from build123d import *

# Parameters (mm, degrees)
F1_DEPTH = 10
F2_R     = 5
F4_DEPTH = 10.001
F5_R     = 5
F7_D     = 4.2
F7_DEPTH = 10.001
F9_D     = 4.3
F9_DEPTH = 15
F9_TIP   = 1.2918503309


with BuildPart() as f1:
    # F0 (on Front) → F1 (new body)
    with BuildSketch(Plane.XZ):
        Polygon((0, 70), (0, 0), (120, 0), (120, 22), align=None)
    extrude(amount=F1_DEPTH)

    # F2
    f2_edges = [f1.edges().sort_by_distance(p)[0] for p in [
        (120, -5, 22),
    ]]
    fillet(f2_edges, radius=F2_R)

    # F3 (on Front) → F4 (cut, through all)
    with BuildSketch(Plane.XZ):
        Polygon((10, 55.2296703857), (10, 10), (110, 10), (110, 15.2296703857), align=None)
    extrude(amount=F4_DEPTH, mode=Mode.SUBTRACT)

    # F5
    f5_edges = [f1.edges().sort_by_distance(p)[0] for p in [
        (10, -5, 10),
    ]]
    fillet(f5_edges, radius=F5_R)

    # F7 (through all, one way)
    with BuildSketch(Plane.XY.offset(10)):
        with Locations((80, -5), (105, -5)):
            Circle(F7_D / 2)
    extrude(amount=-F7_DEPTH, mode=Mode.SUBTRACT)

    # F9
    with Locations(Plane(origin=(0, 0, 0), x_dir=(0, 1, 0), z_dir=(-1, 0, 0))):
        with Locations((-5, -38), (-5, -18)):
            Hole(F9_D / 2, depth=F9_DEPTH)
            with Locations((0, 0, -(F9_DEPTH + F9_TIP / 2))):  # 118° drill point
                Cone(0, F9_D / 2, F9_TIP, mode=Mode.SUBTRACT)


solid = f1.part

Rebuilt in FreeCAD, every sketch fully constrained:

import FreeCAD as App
import Part
import Sketcher


def edges_at(feature, points):
    """Names of the edges that pass closest to the given points."""
    edges = feature.Shape.Edges
    near = lambda p: min(range(len(edges)), key=lambda i: edges[i].distToShape(Part.Vertex(*p))[0])
    return sorted({f"Edge{near(p) + 1}" for p in points})

doc = App.newDocument("Part")
params = doc.addObject("Spreadsheet::Sheet", "Params")
for row, (alias, value) in enumerate([
    ("sketch1_width", "120 mm"),
    ("sketch1_height", "70 mm"),
    ("sketch1_height2", "22 mm"),
    ("pad1_length", "10 mm"),
    ("fillet_radius", "5 mm"),
    ("sketch2_width", "100 mm"),
    ("fillet2_radius", "5 mm"),
    ("sketch3_diameter", "4.2 mm"),
    ("sketch4_diameter", "4.3 mm"),
    ("hole_diameter", "4.3 mm"),
    ("hole_depth", "15 mm"),
], start=1):
    params.set(f"A{row}", alias)
    params.set(f"B{row}", "=" + value)
    params.setAlias(f"B{row}", alias)

body = doc.addObject("PartDesign::Body", "Body")

sketch1 = body.newObject("Sketcher::SketchObject", "Sketch")
sketch1.AttachmentSupport = (doc.getObject("XZ_Plane"), [""])
sketch1.MapMode = "FlatFace"
sketch1.addGeometry([
    Part.LineSegment(App.Vector(0, 70, 0), App.Vector(0, 0, 0)),
    Part.LineSegment(App.Vector(0, 0, 0), App.Vector(120, 0, 0)),
    Part.LineSegment(App.Vector(120, 0, 0), App.Vector(120, 22, 0)),
    Part.LineSegment(App.Vector(120, 22, 0), App.Vector(0, 70, 0)),
], False)
sketch1.addConstraint([
    Sketcher.Constraint("Coincident", 0, 2, 1, 1),
    Sketcher.Constraint("Coincident", 1, 2, 2, 1),
    Sketcher.Constraint("Coincident", 2, 2, 3, 1),
    Sketcher.Constraint("Coincident", 3, 2, 0, 1),
    Sketcher.Constraint("Vertical", 0),
    Sketcher.Constraint("Horizontal", 1),
    Sketcher.Constraint("Vertical", 2),
    Sketcher.Constraint("Coincident", 0, 2, -1, 1),
    Sketcher.Constraint("DistanceX", 1, 1, 1, 2, 120.0),
    Sketcher.Constraint("DistanceY", 0, 2, 0, 1, 70.0),
    Sketcher.Constraint("DistanceY", 2, 1, 2, 2, 22.0),
])
sketch1.setExpression("Constraints[8]", "Params.sketch1_width")
sketch1.setExpression("Constraints[9]", "Params.sketch1_height")
sketch1.setExpression("Constraints[10]", "Params.sketch1_height2")
pad1 = body.newObject("PartDesign::Pad", "Pad")
pad1.Profile = sketch1
pad1.setExpression("Length", "Params.pad1_length")
doc.recompute()

fillet = body.newObject("PartDesign::Fillet", "Fillet")
fillet.Base = (pad1, edges_at(pad1, [(120, -5, 22)]))
fillet.setExpression("Radius", "Params.fillet_radius")

sketch2 = body.newObject("Sketcher::SketchObject", "Sketch001")
sketch2.AttachmentSupport = (doc.getObject("XZ_Plane"), [""])
sketch2.MapMode = "FlatFace"
sketch2.addGeometry([
    Part.LineSegment(App.Vector(10, 55, 0), App.Vector(10, 10, 0)),
    Part.LineSegment(App.Vector(10, 10, 0), App.Vector(110, 10, 0)),
    Part.LineSegment(App.Vector(110, 10, 0), App.Vector(110, 15, 0)),
    Part.LineSegment(App.Vector(110, 15, 0), App.Vector(10, 55, 0)),
], False)
sketch2.addConstraint([
    Sketcher.Constraint("Coincident", 0, 2, 1, 1),
    Sketcher.Constraint("Coincident", 1, 2, 2, 1),
    Sketcher.Constraint("Coincident", 2, 2, 3, 1),
    Sketcher.Constraint("Coincident", 3, 2, 0, 1),
    Sketcher.Constraint("Vertical", 0),
    Sketcher.Constraint("Horizontal", 1),
    Sketcher.Constraint("Vertical", 2),
    Sketcher.Constraint("DistanceX", 1, 1, 1, 2, 100.0),
    Sketcher.Constraint("DistanceX", -1, 1, 0, 2, 10.0),
    Sketcher.Constraint("DistanceY", -1, 1, 0, 2, 10.0),
    Sketcher.Constraint("DistanceY", 2, 2, 3, 2, 40.0),
    Sketcher.Constraint("DistanceY", 0, 2, 0, 1, 45.22967),
])
sketch2.setExpression("Constraints[7]", "Params.sketch2_width")
pocket1 = body.newObject("PartDesign::Pocket", "Pocket")
pocket1.Profile = sketch2
pocket1.Type = "ThroughAll"
pocket1.Reversed = True
doc.recompute()

fillet2 = body.newObject("PartDesign::Fillet", "Fillet001")
fillet2.Base = (pocket1, edges_at(pocket1, [(10, -5, 10)]))
fillet2.setExpression("Radius", "Params.fillet2_radius")

sketch3 = body.newObject("Sketcher::SketchObject", "Sketch002")
sketch3.AttachmentSupport = (doc.getObject("XY_Plane"), [""])
sketch3.MapMode = "FlatFace"
sketch3.AttachmentOffset = App.Placement(App.Vector(0, 0, 10), App.Rotation())
sketch3.addGeometry([
    Part.Circle(App.Vector(105, -5, 0), App.Vector(0, 0, 1), 2.1),
    Part.Circle(App.Vector(80, -5, 0), App.Vector(0, 0, 1), 2.1),
], False)
sketch3.addConstraint([
    Sketcher.Constraint("Equal", 0, 1),
    Sketcher.Constraint("Horizontal", 0, 3, 1, 3),
    Sketcher.Constraint("Diameter", 0, 4.2),
    Sketcher.Constraint("DistanceX", -1, 1, 0, 3, 105.0),
    Sketcher.Constraint("DistanceY", 0, 3, -1, 1, 5.0),
    Sketcher.Constraint("DistanceX", -1, 1, 1, 3, 80.0),
])
sketch3.setExpression("Constraints[2]", "Params.sketch3_diameter")
pocket2 = body.newObject("PartDesign::Pocket", "Pocket001")
pocket2.Profile = sketch3
pocket2.Type = "ThroughAll"

sketch4 = body.newObject("Sketcher::SketchObject", "Sketch003")
sketch4.AttachmentSupport = (doc.getObject("YZ_Plane"), [""])
sketch4.MapMode = "FlatFace"
sketch4.addGeometry([
    Part.Circle(App.Vector(-5, 38, 0), App.Vector(0, 0, 1), 2.1),
    Part.Circle(App.Vector(-5, 18, 0), App.Vector(0, 0, 1), 2.1),
], False)
sketch4.addConstraint([
    Sketcher.Constraint("Equal", 0, 1),
    Sketcher.Constraint("Vertical", 0, 3, 1, 3),
    Sketcher.Constraint("Diameter", 0, 4.3),
    Sketcher.Constraint("DistanceX", 0, 3, -1, 1, 5.0),
    Sketcher.Constraint("DistanceY", -1, 1, 0, 3, 38.0),
    Sketcher.Constraint("DistanceY", -1, 1, 1, 3, 18.0),
])
sketch4.setExpression("Constraints[2]", "Params.sketch4_diameter")
doc.recompute()
hole = body.newObject("PartDesign::Hole", "Hole")
hole.Profile = sketch4
hole.ThreadType = "None"
hole.setExpression("Diameter", "Params.hole_diameter")
hole.DepthType = "Dimension"
hole.setExpression("Depth", "Params.hole_depth")
hole.DrillPoint = "Angled"
hole.DrillPointAngle = 118
hole.Reversed = True

doc.recompute()
